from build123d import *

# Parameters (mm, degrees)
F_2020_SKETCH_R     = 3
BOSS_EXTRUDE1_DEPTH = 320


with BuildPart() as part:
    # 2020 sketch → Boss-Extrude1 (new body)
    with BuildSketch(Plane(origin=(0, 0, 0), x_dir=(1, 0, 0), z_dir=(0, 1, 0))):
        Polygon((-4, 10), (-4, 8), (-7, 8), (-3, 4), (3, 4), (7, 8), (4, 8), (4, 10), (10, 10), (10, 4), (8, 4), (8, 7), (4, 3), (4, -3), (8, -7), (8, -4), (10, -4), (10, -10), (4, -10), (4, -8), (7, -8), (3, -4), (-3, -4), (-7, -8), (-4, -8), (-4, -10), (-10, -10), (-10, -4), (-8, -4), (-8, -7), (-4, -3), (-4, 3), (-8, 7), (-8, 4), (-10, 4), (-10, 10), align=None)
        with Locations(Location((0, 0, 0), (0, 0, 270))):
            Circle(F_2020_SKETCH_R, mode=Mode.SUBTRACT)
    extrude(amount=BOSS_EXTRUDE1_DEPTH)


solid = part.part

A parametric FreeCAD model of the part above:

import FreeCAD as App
import Part
import Sketcher
Q = App.Units.Quantity


def add_polygon(sketch, points):
    """Adds a closed chain of lines whose ends are joined by coincident constraints."""
    first, n = sketch.GeometryCount, len(points)
    for a, b in zip(points, points[1:] + points[:1]):
        sketch.addGeometry(Part.LineSegment(App.Vector(*a, 0), App.Vector(*b, 0)), False)
    for i in range(n):
        sketch.addConstraint(Sketcher.Constraint("Coincident", first + i, 2, first + (i + 1) % n, 1))

doc = App.newDocument("Part")
body = doc.addObject("PartDesign::Body", "Body")

# Sketch on XZ plane
sketch1 = doc.addObject("Sketcher::SketchObject", "Sketch")
body.addObject(sketch1)
sketch1.AttachmentSupport = (doc.XZ_Plane, [""])
sketch1.MapMode = "FlatFace"
add_polygon(sketch1, [(-4, -8), (-4, -10), (-10, -10), (-10, -4), (-8, -4), (-8, -7), (-4, -3), (-4, 3), (-8, 7), (-8, 4), (-10, 4), (-10, 10), (-4, 10), (-4, 8), (-7, 8), (-3, 4), (3, 4), (7, 8), (4, 8), (4, 10), (10, 10), (10, 4), (8, 4), (8, 7), (4, 3), (4, -3), (8, -7), (8, -4), (10, -4), (10, -10), (4, -10), (4, -8), (7, -8), (3, -4), (-3, -4), (-7, -8)])  # lines 0-35
sketch1.addGeometry(Part.Circle(App.Vector(0, 0, 0), App.Vector(0, 0, 1), 3), False)  # 36
sketch1.addConstraint([
    Sketcher.Constraint("Vertical", 0),
    Sketcher.Constraint("Horizontal", 1),
    Sketcher.Constraint("Vertical", 2),
    Sketcher.Constraint("Horizontal", 3),
    Sketcher.Constraint("Vertical", 4),
    Sketcher.Constraint("Vertical", 6),
    Sketcher.Constraint("Vertical", 8),
    Sketcher.Constraint("Horizontal", 9),
    Sketcher.Constraint("Vertical", 10),
    Sketcher.Constraint("Horizontal", 11),
    Sketcher.Constraint("Vertical", 12),
    Sketcher.Constraint("Horizontal", 13),
    Sketcher.Constraint("Horizontal", 15),
    Sketcher.Constraint("Horizontal", 17),
    Sketcher.Constraint("Vertical", 18),
    Sketcher.Constraint("Horizontal", 19),
    Sketcher.Constraint("Vertical", 20),
    Sketcher.Constraint("Horizontal", 21),
    Sketcher.Constraint("Vertical", 22),
    Sketcher.Constraint("Vertical", 24),
    Sketcher.Constraint("Vertical", 26),
    Sketcher.Constraint("Horizontal", 27),
    Sketcher.Constraint("Vertical", 28),
    Sketcher.Constraint("Horizontal", 29),
    Sketcher.Constraint("Vertical", 30),
    Sketcher.Constraint("Horizontal", 31),
    Sketcher.Constraint("Horizontal", 33),
    Sketcher.Constraint("Horizontal", 35),
    Sketcher.Constraint("Coincident", 36, 3, -1, 1),
    Sketcher.Constraint("Symmetric", 0, 2, 18, 2, -1, 1),
    Sketcher.Constraint("Symmetric", 2, 2, 20, 2, -1, 1),
    Sketcher.Constraint("Symmetric", 4, 2, 22, 2, -1, 1),
    Sketcher.Constraint("Symmetric", 5, 2, 23, 2, -1, 1),
    Sketcher.Constraint("Symmetric", 7, 2, 25, 2, -1, 1),
    Sketcher.Constraint("Symmetric", 9, 2, 27, 2, -1, 1),
    Sketcher.Constraint("Symmetric", 11, 2, 29, 2, -1, 1),
    Sketcher.Constraint("Symmetric", 13, 2, 31, 2, -1, 1),
    Sketcher.Constraint("Symmetric", 14, 2, 32, 2, -1, 1),
    Sketcher.Constraint("Symmetric", 16, 2, 34, 2, -1, 1),
    Sketcher.Constraint("Symmetric", 13, 2, 16, 2, -2),
    Sketcher.Constraint("Symmetric", 11, 2, 18, 2, -2),
    Sketcher.Constraint("Symmetric", 9, 2, 20, 2, -2),
    Sketcher.Constraint("Symmetric", 7, 2, 22, 2, -2),
    Sketcher.Constraint("Perpendicular", 5, 7),
    Sketcher.Constraint("Parallel", 7, 14),
    Sketcher.Constraint("Perpendicular", 14, 16),
    Sketcher.Constraint("Perpendicular", 23, 25),
    Sketcher.Constraint("Perpendicular", 32, 34),
    Sketcher.Constraint("Horizontal", 9, 2, 14, 2),
    Sketcher.Constraint("Horizontal", 6, 2, 23, 2),
    Sketcher.Constraint("Vertical", 0, 2, 5, 2),
    Sketcher.Constraint("Equal", 11, 15),
    Sketcher.Constraint("Equal", 27, 0),
    Sketcher.Constraint("Equal", 33, 2),
    Sketcher.Constraint("Equal", 35, 4),
    Sketcher.Constraint("Equal", 2, 6),
    Sketcher.Constraint("Diameter", 36, Q("6 mm")),
    Sketcher.Constraint("DistanceX", 1, 2, 1, 1, Q("6 mm")),
    Sketcher.Constraint("DistanceX", 3, 1, 3, 2, Q("2 mm")),
    Sketcher.Constraint("DistanceX", 13, 2, 13, 1, Q("3 mm")),
])
pad1 = doc.addObject("PartDesign::Pad", "Pad")
body.addObject(pad1)
pad1.Profile = sketch1
pad1.Length = 320
pad1.Reversed = True

doc.recompute()
